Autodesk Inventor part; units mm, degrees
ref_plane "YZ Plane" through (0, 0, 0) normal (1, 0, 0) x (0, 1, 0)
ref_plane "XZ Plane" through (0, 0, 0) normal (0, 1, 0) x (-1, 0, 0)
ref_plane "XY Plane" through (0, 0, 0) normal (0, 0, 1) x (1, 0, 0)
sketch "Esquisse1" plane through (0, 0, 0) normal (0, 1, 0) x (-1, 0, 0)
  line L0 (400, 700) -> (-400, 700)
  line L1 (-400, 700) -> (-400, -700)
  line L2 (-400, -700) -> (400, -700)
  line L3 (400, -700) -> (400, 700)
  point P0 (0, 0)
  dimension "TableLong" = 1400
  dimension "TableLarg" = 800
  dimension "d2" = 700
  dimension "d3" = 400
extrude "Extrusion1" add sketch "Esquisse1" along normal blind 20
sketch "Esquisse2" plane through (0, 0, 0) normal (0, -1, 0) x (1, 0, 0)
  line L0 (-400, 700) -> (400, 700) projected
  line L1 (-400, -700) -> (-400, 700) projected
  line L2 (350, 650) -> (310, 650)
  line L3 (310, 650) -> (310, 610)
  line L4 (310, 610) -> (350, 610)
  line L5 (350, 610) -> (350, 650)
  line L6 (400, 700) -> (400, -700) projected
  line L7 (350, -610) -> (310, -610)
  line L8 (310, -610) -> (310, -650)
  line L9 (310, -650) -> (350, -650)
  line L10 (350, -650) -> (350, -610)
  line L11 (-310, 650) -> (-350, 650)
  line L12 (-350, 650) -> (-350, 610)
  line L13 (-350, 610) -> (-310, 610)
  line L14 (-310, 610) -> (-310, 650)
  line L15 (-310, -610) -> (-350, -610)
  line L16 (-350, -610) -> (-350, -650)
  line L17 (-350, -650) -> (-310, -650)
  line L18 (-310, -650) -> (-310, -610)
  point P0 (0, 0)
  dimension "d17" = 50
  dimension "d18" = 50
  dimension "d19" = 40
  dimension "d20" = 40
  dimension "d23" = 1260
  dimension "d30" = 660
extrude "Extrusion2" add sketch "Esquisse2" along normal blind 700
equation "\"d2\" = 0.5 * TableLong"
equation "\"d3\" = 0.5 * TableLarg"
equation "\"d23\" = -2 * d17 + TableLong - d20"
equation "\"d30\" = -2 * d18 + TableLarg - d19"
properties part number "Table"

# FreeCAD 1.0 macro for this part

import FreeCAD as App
import Part
import Sketcher

doc = App.newDocument("Part")
body = doc.addObject("PartDesign::Body", "Body")

# Sketch on XZ plane
sketch1 = body.newObject("Sketcher::SketchObject", "Sketch")
sketch1.AttachmentSupport = (doc.getObject("XZ_Plane"), [""])
sketch1.MapMode = "FlatFace"
sketch1.addGeometry([
    Part.LineSegment(App.Vector(-400, -700, 0), App.Vector(-400, 700, 0)),
    Part.LineSegment(App.Vector(-400, 700, 0), App.Vector(400, 700, 0)),
    Part.LineSegment(App.Vector(400, 700, 0), App.Vector(400, -700, 0)),
    Part.LineSegment(App.Vector(400, -700, 0), App.Vector(-400, -700, 0)),
], False)
sketch1.addConstraint([
    Sketcher.Constraint("Coincident", 0, 2, 1, 1),
    Sketcher.Constraint("Coincident", 1, 2, 2, 1),
    Sketcher.Constraint("Coincident", 2, 2, 3, 1),
    Sketcher.Constraint("Coincident", 3, 2, 0, 1),
    Sketcher.Constraint("Vertical", 0),
    Sketcher.Constraint("Horizontal", 1),
    Sketcher.Constraint("Vertical", 2),
    Sketcher.Constraint("Horizontal", 3),
    Sketcher.Constraint("Symmetric", 0, 2, 2, 2, -1, 1),
    Sketcher.Constraint("DistanceX", 1, 1, 1, 2, 800.0),
    Sketcher.Constraint("DistanceY", 0, 1, 0, 2, 1400.0),
])
pad1 = body.newObject("PartDesign::Pad", "Pad")
pad1.Profile = sketch1
pad1.Length = 20
pad1.Reversed = True

# Sketch on XZ plane
sketch2 = body.newObject("Sketcher::SketchObject", "Sketch001")
sketch2.AttachmentSupport = (doc.getObject("XZ_Plane"), [""])
sketch2.MapMode = "FlatFace"
sketch2.addGeometry([
    Part.LineSegment(App.Vector(350, 610, 0), App.Vector(350, 650, 0)),  # 0
    Part.LineSegment(App.Vector(350, 650, 0), App.Vector(310, 650, 0)),  # 1
    Part.LineSegment(App.Vector(310, 650, 0), App.Vector(310, 610, 0)),  # 2
    Part.LineSegment(App.Vector(310, 610, 0), App.Vector(350, 610, 0)),  # 3
    Part.LineSegment(App.Vector(350, -650, 0), App.Vector(350, -610, 0)),  # 4
    Part.LineSegment(App.Vector(350, -610, 0), App.Vector(310, -610, 0)),  # 5
    Part.LineSegment(App.Vector(310, -610, 0), App.Vector(310, -650, 0)),  # 6
    Part.LineSegment(App.Vector(310, -650, 0), App.Vector(350, -650, 0)),  # 7
    Part.LineSegment(App.Vector(-310, 610, 0), App.Vector(-310, 650, 0)),  # 8
    Part.LineSegment(App.Vector(-310, 650, 0), App.Vector(-350, 650, 0)),  # 9
    Part.LineSegment(App.Vector(-350, 650, 0), App.Vector(-350, 610, 0)),  # 10
    Part.LineSegment(App.Vector(-350, 610, 0), App.Vector(-310, 610, 0)),  # 11
    Part.LineSegment(App.Vector(-310, -650, 0), App.Vector(-310, -610, 0)),  # 12
    Part.LineSegment(App.Vector(-310, -610, 0), App.Vector(-350, -610, 0)),  # 13
    Part.LineSegment(App.Vector(-350, -610, 0), App.Vector(-350, -650, 0)),  # 14
    Part.LineSegment(App.Vector(-350, -650, 0), App.Vector(-310, -650, 0)),  # 15
], False)
sketch2.addConstraint([
    Sketcher.Constraint("Coincident", 0, 2, 1, 1),
    Sketcher.Constraint("Coincident", 1, 2, 2, 1),
    Sketcher.Constraint("Coincident", 2, 2, 3, 1),
    Sketcher.Constraint("Coincident", 3, 2, 0, 1),
    Sketcher.Constraint("Coincident", 4, 2, 5, 1),
    Sketcher.Constraint("Coincident", 5, 2, 6, 1),
    Sketcher.Constraint("Coincident", 6, 2, 7, 1),
    Sketcher.Constraint("Coincident", 7, 2, 4, 1),
    Sketcher.Constraint("Coincident", 8, 2, 9, 1),
    Sketcher.Constraint("Coincident", 9, 2, 10, 1),
    Sketcher.Constraint("Coincident", 10, 2, 11, 1),
    Sketcher.Constraint("Coincident", 11, 2, 8, 1),
    Sketcher.Constraint("Coincident", 12, 2, 13, 1),
    Sketcher.Constraint("Coincident", 13, 2, 14, 1),
    Sketcher.Constraint("Coincident", 14, 2, 15, 1),
    Sketcher.Constraint("Coincident", 15, 2, 12, 1),
    Sketcher.Constraint("Vertical", 0),
    Sketcher.Constraint("Horizontal", 1),
    Sketcher.Constraint("Vertical", 2),
    Sketcher.Constraint("Horizontal", 3),
    Sketcher.Constraint("Vertical", 4),
    Sketcher.Constraint("Horizontal", 5),
    Sketcher.Constraint("Vertical", 6),
    Sketcher.Constraint("Horizontal", 7),
    Sketcher.Constraint("Vertical", 8),
    Sketcher.Constraint("Horizontal", 9),
    Sketcher.Constraint("Vertical", 10),
    Sketcher.Constraint("Horizontal", 11),
    Sketcher.Constraint("Vertical", 12),
    Sketcher.Constraint("Horizontal", 13),
    Sketcher.Constraint("Vertical", 14),
    Sketcher.Constraint("Horizontal", 15),
    Sketcher.Constraint("Symmetric", 6, 2, 8, 2, -1, 1),
    Sketcher.Constraint("Symmetric", 4, 2, 10, 2, -1, 1),
    Sketcher.Constraint("Symmetric", 2, 2, 12, 2, -1, 1),
    Sketcher.Constraint("Symmetric", 0, 2, 14, 2, -1, 1),
    Sketcher.Constraint("Symmetric", 1, 2, 8, 2, -2),
    Sketcher.Constraint("Symmetric", 3, 2, 10, 2, -2),
    Sketcher.Constraint("Equal", 15, 0),
    Sketcher.Constraint("DistanceX", 1, 2, 1, 1, 40.0),
    Sketcher.Constraint("DistanceY", 4, 2, 0, 2, 1260.0),
    Sketcher.Constraint("DistanceX", 8, 2, 0, 2, 660.0),
])
pad2 = body.newObject("PartDesign::Pad", "Pad001")
pad2.Profile = sketch2
pad2.Length = 700

doc.recompute()
